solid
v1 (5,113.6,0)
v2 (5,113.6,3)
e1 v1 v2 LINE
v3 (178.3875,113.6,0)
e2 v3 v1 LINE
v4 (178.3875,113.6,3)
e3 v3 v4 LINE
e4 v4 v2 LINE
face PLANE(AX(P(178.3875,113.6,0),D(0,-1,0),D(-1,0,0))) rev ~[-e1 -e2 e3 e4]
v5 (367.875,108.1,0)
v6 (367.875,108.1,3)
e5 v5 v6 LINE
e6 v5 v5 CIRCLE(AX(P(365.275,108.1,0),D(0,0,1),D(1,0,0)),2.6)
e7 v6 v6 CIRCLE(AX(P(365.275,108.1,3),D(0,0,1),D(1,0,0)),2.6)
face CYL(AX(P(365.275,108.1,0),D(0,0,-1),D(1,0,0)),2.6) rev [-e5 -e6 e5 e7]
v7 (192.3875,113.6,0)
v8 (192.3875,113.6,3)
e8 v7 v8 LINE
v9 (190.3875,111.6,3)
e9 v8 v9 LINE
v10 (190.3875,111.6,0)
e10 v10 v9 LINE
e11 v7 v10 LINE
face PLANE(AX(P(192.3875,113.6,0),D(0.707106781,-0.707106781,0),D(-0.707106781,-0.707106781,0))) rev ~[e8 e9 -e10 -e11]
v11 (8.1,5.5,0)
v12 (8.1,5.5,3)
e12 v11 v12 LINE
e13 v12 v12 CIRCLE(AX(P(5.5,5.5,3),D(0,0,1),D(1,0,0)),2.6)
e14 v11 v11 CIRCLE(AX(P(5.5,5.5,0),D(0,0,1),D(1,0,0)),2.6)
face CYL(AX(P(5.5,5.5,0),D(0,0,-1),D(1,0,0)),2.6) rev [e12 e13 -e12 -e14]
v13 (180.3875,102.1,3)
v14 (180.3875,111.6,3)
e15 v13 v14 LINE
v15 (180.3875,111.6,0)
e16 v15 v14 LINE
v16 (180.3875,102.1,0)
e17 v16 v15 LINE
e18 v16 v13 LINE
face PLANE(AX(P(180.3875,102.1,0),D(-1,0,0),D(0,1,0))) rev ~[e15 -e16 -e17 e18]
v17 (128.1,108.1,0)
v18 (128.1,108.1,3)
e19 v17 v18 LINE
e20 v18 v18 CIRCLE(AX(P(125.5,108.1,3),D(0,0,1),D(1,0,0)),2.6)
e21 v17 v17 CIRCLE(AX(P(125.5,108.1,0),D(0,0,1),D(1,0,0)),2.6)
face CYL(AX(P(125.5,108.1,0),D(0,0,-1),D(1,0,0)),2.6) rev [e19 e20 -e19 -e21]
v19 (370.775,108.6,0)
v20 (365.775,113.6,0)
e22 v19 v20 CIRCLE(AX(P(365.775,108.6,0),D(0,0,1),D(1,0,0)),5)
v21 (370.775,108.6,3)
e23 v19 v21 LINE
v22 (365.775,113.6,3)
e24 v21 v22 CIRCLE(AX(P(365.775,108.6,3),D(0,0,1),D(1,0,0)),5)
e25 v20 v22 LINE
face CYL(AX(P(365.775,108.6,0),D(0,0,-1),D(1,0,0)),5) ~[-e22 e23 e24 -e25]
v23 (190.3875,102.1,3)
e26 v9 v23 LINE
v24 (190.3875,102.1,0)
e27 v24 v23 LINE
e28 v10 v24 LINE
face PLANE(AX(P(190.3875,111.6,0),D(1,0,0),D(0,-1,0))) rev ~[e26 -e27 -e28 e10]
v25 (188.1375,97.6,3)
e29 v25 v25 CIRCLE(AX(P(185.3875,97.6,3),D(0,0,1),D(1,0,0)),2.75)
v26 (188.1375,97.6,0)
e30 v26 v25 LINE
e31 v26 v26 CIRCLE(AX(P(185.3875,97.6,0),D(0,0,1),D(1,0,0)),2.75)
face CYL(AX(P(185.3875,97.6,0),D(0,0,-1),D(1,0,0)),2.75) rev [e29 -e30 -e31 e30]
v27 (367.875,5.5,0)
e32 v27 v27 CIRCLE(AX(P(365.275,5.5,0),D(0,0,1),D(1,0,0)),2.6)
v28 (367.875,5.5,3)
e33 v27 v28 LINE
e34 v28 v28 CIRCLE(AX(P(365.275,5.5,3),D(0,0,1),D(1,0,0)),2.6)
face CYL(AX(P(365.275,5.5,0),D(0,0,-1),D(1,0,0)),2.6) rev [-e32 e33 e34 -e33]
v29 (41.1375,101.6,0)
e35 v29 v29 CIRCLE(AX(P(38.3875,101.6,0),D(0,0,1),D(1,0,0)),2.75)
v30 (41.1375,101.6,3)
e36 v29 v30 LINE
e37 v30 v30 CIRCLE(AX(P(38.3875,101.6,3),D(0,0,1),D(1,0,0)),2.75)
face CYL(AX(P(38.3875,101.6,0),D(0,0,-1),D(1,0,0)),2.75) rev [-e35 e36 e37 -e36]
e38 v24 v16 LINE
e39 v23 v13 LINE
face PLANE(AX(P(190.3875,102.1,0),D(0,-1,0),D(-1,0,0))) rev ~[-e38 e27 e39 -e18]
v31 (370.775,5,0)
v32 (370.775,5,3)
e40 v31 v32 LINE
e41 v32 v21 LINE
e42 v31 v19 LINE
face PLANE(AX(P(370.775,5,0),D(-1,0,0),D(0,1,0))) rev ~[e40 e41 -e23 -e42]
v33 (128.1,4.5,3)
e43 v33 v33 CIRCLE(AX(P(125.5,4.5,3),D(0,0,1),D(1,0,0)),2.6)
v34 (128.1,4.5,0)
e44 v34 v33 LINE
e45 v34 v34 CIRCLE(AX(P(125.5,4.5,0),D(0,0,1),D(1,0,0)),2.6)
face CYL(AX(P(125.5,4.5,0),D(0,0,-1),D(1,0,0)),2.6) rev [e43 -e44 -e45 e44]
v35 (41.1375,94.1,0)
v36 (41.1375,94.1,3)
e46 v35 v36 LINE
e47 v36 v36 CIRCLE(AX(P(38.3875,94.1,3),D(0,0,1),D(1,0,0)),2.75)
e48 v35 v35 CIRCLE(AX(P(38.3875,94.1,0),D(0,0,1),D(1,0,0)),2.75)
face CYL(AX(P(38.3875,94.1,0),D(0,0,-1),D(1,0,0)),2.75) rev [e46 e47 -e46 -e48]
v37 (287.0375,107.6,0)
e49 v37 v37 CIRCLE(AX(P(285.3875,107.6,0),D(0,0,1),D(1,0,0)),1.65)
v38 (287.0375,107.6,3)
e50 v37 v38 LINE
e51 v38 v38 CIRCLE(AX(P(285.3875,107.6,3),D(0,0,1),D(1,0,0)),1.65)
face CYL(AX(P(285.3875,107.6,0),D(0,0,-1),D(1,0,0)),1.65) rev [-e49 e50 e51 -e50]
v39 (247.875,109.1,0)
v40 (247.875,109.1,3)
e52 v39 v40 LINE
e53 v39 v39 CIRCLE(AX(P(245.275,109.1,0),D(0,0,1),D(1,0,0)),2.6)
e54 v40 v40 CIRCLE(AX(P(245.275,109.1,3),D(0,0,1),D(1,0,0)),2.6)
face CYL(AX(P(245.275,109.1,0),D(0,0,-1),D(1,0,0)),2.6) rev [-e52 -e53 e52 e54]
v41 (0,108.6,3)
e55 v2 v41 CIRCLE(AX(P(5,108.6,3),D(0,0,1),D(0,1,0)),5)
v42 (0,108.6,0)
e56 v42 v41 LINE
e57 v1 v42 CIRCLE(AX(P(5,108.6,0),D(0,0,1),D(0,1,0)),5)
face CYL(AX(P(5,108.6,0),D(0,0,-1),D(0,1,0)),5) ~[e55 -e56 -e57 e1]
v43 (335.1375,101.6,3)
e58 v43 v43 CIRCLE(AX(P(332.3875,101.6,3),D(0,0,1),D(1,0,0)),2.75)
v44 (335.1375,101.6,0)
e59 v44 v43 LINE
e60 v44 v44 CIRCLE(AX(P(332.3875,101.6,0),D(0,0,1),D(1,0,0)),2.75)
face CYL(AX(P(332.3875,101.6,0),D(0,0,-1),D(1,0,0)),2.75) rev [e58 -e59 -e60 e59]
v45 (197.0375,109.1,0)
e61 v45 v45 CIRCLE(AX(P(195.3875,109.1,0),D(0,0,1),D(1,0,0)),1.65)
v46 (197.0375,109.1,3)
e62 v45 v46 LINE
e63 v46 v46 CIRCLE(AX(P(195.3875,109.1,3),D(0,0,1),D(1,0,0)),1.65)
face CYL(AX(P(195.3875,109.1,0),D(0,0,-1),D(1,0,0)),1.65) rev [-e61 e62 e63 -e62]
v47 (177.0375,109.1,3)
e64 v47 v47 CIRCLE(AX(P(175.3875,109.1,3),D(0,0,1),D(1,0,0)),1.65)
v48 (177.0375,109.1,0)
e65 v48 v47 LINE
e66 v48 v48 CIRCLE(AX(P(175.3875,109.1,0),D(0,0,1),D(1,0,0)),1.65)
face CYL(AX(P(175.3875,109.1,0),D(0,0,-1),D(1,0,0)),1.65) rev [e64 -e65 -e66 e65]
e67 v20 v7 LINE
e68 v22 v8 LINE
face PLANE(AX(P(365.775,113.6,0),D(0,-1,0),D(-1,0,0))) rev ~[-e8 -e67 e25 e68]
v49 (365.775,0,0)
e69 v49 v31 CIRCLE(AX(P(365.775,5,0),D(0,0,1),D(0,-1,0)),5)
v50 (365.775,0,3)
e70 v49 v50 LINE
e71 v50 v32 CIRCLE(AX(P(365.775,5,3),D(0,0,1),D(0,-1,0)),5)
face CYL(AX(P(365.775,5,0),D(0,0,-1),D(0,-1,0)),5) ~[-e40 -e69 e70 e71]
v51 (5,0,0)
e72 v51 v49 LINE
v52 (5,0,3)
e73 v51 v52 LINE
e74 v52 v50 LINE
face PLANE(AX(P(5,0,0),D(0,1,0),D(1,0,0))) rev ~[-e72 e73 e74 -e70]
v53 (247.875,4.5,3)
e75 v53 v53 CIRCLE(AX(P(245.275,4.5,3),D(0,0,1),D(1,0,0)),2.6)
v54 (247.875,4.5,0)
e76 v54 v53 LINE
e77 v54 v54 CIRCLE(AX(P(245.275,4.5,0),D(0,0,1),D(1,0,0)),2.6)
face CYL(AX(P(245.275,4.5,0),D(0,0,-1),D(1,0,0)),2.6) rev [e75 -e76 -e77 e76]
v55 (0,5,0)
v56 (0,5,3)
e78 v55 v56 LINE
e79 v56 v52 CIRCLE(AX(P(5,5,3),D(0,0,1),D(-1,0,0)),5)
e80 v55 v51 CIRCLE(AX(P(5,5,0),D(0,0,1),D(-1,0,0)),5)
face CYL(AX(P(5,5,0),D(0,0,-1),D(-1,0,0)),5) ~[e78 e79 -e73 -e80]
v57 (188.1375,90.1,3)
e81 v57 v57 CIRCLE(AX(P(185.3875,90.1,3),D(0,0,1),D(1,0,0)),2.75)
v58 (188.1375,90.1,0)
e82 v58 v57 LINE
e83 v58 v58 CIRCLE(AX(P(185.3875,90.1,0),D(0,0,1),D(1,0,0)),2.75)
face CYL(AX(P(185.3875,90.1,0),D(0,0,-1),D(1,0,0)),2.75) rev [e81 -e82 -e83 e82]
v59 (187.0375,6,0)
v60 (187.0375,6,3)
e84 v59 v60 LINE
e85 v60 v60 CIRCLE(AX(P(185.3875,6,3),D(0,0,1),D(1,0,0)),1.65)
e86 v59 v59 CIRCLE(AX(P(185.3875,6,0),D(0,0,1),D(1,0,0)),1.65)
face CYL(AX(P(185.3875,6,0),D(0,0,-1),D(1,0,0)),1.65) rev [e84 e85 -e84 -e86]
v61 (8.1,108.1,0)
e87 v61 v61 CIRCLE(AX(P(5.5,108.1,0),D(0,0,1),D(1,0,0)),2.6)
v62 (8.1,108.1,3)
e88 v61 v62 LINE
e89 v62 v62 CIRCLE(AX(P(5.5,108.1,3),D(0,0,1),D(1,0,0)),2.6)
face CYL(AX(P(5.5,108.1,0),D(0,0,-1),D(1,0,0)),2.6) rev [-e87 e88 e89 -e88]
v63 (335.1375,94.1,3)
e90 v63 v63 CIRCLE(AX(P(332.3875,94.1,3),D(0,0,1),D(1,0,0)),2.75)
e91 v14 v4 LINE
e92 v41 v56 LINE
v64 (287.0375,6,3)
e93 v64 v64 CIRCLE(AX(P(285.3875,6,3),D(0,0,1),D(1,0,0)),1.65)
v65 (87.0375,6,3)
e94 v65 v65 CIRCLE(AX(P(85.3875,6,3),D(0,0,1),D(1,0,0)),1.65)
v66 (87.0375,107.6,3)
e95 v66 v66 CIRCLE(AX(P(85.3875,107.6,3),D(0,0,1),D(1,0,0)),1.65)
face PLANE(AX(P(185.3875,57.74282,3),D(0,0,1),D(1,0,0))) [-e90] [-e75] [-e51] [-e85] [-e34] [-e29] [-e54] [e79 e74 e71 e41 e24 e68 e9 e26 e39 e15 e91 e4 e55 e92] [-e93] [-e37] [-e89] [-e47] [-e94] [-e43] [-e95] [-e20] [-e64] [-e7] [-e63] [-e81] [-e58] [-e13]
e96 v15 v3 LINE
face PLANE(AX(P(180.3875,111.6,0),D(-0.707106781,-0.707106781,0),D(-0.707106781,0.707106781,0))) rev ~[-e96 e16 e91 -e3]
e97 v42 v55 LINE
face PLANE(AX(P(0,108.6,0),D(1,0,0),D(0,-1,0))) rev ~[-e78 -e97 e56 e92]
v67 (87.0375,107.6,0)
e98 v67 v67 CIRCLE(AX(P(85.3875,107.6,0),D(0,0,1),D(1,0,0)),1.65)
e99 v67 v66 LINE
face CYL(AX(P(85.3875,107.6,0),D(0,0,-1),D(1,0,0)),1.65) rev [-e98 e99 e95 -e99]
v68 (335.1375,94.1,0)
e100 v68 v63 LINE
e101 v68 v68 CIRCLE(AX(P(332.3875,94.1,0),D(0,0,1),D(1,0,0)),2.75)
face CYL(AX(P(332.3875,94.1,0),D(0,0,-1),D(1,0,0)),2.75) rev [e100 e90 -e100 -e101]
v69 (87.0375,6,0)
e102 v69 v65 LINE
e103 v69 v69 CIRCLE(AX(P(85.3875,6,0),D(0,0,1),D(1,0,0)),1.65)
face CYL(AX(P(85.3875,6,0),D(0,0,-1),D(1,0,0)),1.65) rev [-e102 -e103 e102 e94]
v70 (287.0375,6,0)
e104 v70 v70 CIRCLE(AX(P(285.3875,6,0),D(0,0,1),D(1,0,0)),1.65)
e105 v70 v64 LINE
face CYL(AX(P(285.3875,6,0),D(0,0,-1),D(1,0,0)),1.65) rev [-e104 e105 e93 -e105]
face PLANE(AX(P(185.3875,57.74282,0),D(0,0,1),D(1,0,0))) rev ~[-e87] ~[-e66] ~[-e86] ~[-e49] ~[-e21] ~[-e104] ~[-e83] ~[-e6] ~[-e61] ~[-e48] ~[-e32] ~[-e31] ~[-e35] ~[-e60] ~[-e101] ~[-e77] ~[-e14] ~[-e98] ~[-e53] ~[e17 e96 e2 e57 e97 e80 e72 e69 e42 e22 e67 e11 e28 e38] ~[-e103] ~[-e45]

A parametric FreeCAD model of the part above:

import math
import FreeCAD as App
import Part
import Sketcher
Q = App.Units.Quantity

doc = App.newDocument("Part")
body = doc.addObject("PartDesign::Body", "Body")

# Sketch on XY plane
sketch1 = doc.addObject("Sketcher::SketchObject", "Sketch")
body.addObject(sketch1)
sketch1.AttachmentSupport = (doc.XY_Plane, [""])
sketch1.MapMode = "FlatFace"
sketch1.addGeometry([
    Part.LineSegment(App.Vector(0, 108.6, 0), App.Vector(0, 5, 0)),  # 0
    Part.ArcOfCircle(Part.Circle(App.Vector(5, 5, 0), App.Vector(0, 0, 1), 5), math.radians(180), math.radians(270)),  # 1
    Part.LineSegment(App.Vector(5, 0, 0), App.Vector(365.8, 0, 0)),  # 2
    Part.ArcOfCircle(Part.Circle(App.Vector(365.8, 5, 0), App.Vector(0, 0, 1), 5), math.radians(-90), math.radians(0)),  # 3
    Part.LineSegment(App.Vector(370.8, 5, 0), App.Vector(370.8, 108.6, 0)),  # 4
    Part.ArcOfCircle(Part.Circle(App.Vector(365.8, 108.6, 0), App.Vector(0, 0, 1), 5), math.radians(0), math.radians(90)),  # 5
    Part.LineSegment(App.Vector(365.8, 113.6, 0), App.Vector(192.4, 113.6, 0)),  # 6
    Part.LineSegment(App.Vector(192.4, 113.6, 0), App.Vector(190.4, 111.6, 0)),  # 7
    Part.LineSegment(App.Vector(190.4, 111.6, 0), App.Vector(190.4, 102.1, 0)),  # 8
    Part.LineSegment(App.Vector(190.4, 102.1, 0), App.Vector(180.4, 102.1, 0)),  # 9
    Part.LineSegment(App.Vector(180.4, 102.1, 0), App.Vector(180.4, 111.6, 0)),  # 10
    Part.LineSegment(App.Vector(180.4, 111.6, 0), App.Vector(178.4, 113.6, 0)),  # 11
    Part.LineSegment(App.Vector(178.4, 113.6, 0), App.Vector(5, 113.6, 0)),  # 12
    Part.ArcOfCircle(Part.Circle(App.Vector(5, 108.6, 0), App.Vector(0, 0, 1), 5), math.radians(90), math.radians(180)),  # 13
    Part.Circle(App.Vector(5.5, 5.5, 0), App.Vector(0, 0, 1), 2.6),  # 14
    Part.Circle(App.Vector(85.4, 6, 0), App.Vector(0, 0, 1), 1.6),  # 15
    Part.Circle(App.Vector(125.5, 4.5, 0), App.Vector(0, 0, 1), 2.6),  # 16
    Part.Circle(App.Vector(185.4, 6, 0), App.Vector(0, 0, 1), 1.6),  # 17
    Part.Circle(App.Vector(245.3, 4.5, 0), App.Vector(0, 0, 1), 2.6),  # 18
    Part.Circle(App.Vector(285.4, 6, 0), App.Vector(0, 0, 1), 1.6),  # 19
    Part.Circle(App.Vector(365.3, 5.5, 0), App.Vector(0, 0, 1), 2.6),  # 20
    Part.Circle(App.Vector(38.4, 94.1, 0), App.Vector(0, 0, 1), 2.8),  # 21
    Part.Circle(App.Vector(38.4, 101.6, 0), App.Vector(0, 0, 1), 2.8),  # 22
    Part.Circle(App.Vector(5.5, 108.1, 0), App.Vector(0, 0, 1), 2.6),  # 23
    Part.Circle(App.Vector(85.4, 107.6, 0), App.Vector(0, 0, 1), 1.6),  # 24
    Part.Circle(App.Vector(185.4, 90.1, 0), App.Vector(0, 0, 1), 2.8),  # 25
    Part.Circle(App.Vector(185.4, 97.6, 0), App.Vector(0, 0, 1), 2.8),  # 26
    Part.Circle(App.Vector(125.5, 108.1, 0), App.Vector(0, 0, 1), 2.6),  # 27
    Part.Circle(App.Vector(175.4, 109.1, 0), App.Vector(0, 0, 1), 1.6),  # 28
    Part.Circle(App.Vector(195.4, 109.1, 0), App.Vector(0, 0, 1), 1.6),  # 29
    Part.Circle(App.Vector(245.3, 109.1, 0), App.Vector(0, 0, 1), 2.6),  # 30
    Part.Circle(App.Vector(332.4, 94.1, 0), App.Vector(0, 0, 1), 2.8),  # 31
    Part.Circle(App.Vector(285.4, 107.6, 0), App.Vector(0, 0, 1), 1.6),  # 32
    Part.Circle(App.Vector(332.4, 101.6, 0), App.Vector(0, 0, 1), 2.8),  # 33
    Part.Circle(App.Vector(365.3, 108.1, 0), App.Vector(0, 0, 1), 2.6),  # 34
], False)
sketch1.addConstraint([
    Sketcher.Constraint("Tangent", 0, 2, 1, 1),
    Sketcher.Constraint("Tangent", 1, 2, 2, 1),
    Sketcher.Constraint("Tangent", 2, 2, 3, 1),
    Sketcher.Constraint("Tangent", 3, 2, 4, 1),
    Sketcher.Constraint("Tangent", 4, 2, 5, 1),
    Sketcher.Constraint("Tangent", 5, 2, 6, 1),
    Sketcher.Constraint("Coincident", 6, 2, 7, 1),
    Sketcher.Constraint("Coincident", 7, 2, 8, 1),
    Sketcher.Constraint("Coincident", 8, 2, 9, 1),
    Sketcher.Constraint("Coincident", 9, 2, 10, 1),
    Sketcher.Constraint("Coincident", 10, 2, 11, 1),
    Sketcher.Constraint("Coincident", 11, 2, 12, 1),
    Sketcher.Constraint("Tangent", 12, 2, 13, 1),
    Sketcher.Constraint("Tangent", 13, 2, 0, 1),
    Sketcher.Constraint("Vertical", 0),
    Sketcher.Constraint("Horizontal", 2),
    Sketcher.Constraint("Vertical", 4),
    Sketcher.Constraint("Horizontal", 6),
    Sketcher.Constraint("Vertical", 8),
    Sketcher.Constraint("Horizontal", 9),
    Sketcher.Constraint("Vertical", 10),
    Sketcher.Constraint("Horizontal", 12),
    Sketcher.Constraint("Equal", 1, 3),
    Sketcher.Constraint("Equal", 3, 5),
    Sketcher.Constraint("Equal", 5, 13),
    Sketcher.Constraint("Equal", 14, 16),
    Sketcher.Constraint("Equal", 15, 17),
    Sketcher.Constraint("Equal", 16, 18),
    Sketcher.Constraint("Equal", 17, 19),
    Sketcher.Constraint("Equal", 18, 20),
    Sketcher.Constraint("Equal", 21, 22),
    Sketcher.Constraint("Equal", 20, 23),
    Sketcher.Constraint("Equal", 19, 24),
    Sketcher.Constraint("Equal", 22, 25),
    Sketcher.Constraint("Equal", 25, 26),
    Sketcher.Constraint("Equal", 23, 27),
    Sketcher.Constraint("Equal", 24, 28),
    Sketcher.Constraint("Equal", 28, 29),
    Sketcher.Constraint("Equal", 27, 30),
    Sketcher.Constraint("Equal", 26, 31),
    Sketcher.Constraint("Equal", 29, 32),
    Sketcher.Constraint("Equal", 31, 33),
    Sketcher.Constraint("Equal", 30, 34),
    Sketcher.Constraint("PointOnObject", 0, 2, -2),
    Sketcher.Constraint("PointOnObject", 1, 2, -1),
    Sketcher.Constraint("Perpendicular", 7, 11),
    Sketcher.Constraint("Horizontal", 5, 3, 13, 3),
    Sketcher.Constraint("Horizontal", 15, 3, 17, 3),
    Sketcher.Constraint("Horizontal", 16, 3, 18, 3),
    Sketcher.Constraint("Horizontal", 17, 3, 19, 3),
    Sketcher.Constraint("Horizontal", 14, 3, 20, 3),
    Sketcher.Constraint("Horizontal", 23, 3, 27, 3),
    Sketcher.Constraint("Horizontal", 28, 3, 29, 3),
    Sketcher.Constraint("Horizontal", 29, 3, 30, 3),
    Sketcher.Constraint("Horizontal", 21, 3, 31, 3),
    Sketcher.Constraint("Horizontal", 24, 3, 32, 3),
    Sketcher.Constraint("Horizontal", 22, 3, 33, 3),
    Sketcher.Constraint("Horizontal", 27, 3, 34, 3),
    Sketcher.Constraint("Horizontal", 7, 2, 10, 2),
    Sketcher.Constraint("Vertical", 21, 3, 22, 3),
    Sketcher.Constraint("Vertical", 14, 3, 23, 3),
    Sketcher.Constraint("Vertical", 15, 3, 24, 3),
    Sketcher.Constraint("Vertical", 17, 3, 25, 3),
    Sketcher.Constraint("Vertical", 25, 3, 26, 3),
    Sketcher.Constraint("Vertical", 16, 3, 27, 3),
    Sketcher.Constraint("Vertical", 18, 3, 30, 3),
    Sketcher.Constraint("Vertical", 19, 3, 32, 3),
    Sketcher.Constraint("Vertical", 31, 3, 33, 3),
    Sketcher.Constraint("Vertical", 20, 3, 34, 3),
    Sketcher.Constraint("Equal", 6, 12),
    Sketcher.Constraint("Equal", 7, 11),
    Sketcher.Constraint("Radius", 1, Q("5 mm")),
    Sketcher.Constraint("Diameter", 14, Q("5.2 mm")),
    Sketcher.Constraint("Diameter", 15, Q("3.3 mm")),
    Sketcher.Constraint("Diameter", 21, Q("5.5 mm")),
    Sketcher.Constraint("DistanceX", 9, 2, 9, 1, Q("10 mm")),
    Sketcher.Constraint("DistanceY", 0, 2, 0, 1, Q("103.6 mm")),
    Sketcher.Constraint("DistanceY", 8, 2, 8, 1, Q("9.5 mm")),
    Sketcher.Constraint("DistanceY", -1, 1, 15, 3, Q("6 mm")),
    Sketcher.Constraint("DistanceX", 14, 3, 16, 3, Q("120 mm")),
    Sketcher.Constraint("DistanceY", 16, 3, 14, 3, Q("1 mm")),
    Sketcher.Constraint("DistanceX", 15, 3, 17, 3, Q("100 mm")),
    Sketcher.Constraint("DistanceX", 17, 3, 19, 3, Q("100 mm")),
    Sketcher.Constraint("DistanceX", 18, 3, 20, 3, Q("120 mm")),
    Sketcher.Constraint("DistanceX", 21, 3, 15, 3, Q("47 mm")),
    Sketcher.Constraint("DistanceY", 22, 3, 13, 3, Q("7 mm")),
    Sketcher.Constraint("DistanceY", 21, 3, 23, 3, Q("14 mm")),
    Sketcher.Constraint("DistanceY", 22, 3, 24, 3, Q("6 mm")),
    Sketcher.Constraint("DistanceY", 26, 3, 24, 3, Q("10 mm")),
    Sketcher.Constraint("DistanceY", 25, 3, 27, 3, Q("18 mm")),
    Sketcher.Constraint("DistanceX", 28, 3, 26, 3, Q("10 mm")),
    Sketcher.Constraint("DistanceY", 25, 3, 28, 3, Q("19 mm")),
    Sketcher.Constraint("DistanceX", 26, 3, 29, 3, Q("10 mm")),
    Sketcher.Constraint("DistanceX", 19, 3, 31, 3, Q("47 mm")),
    Sketcher.Constraint("DistanceX", 6, 2, 29, 3, Q("3 mm")),
    Sketcher.Constraint("DistanceX", 7, 2, 6, 2, Q("2 mm")),
    Sketcher.Constraint("DistanceY", 8, 2, 29, 3, Q("7 mm")),
    Sketcher.Constraint("DistanceX", -1, 1, 14, 3, Q("5.5 mm")),
    Sketcher.Constraint("DistanceY", -1, 1, 14, 3, Q("5.5 mm")),
    Sketcher.Constraint("DistanceX", 18, 3, 3, 3, Q("120.5 mm")),
    Sketcher.Constraint("DistanceX", 2, 1, 2, 2, Q("360.775 mm")),
])
pad1 = doc.addObject("PartDesign::Pad", "Pad")
body.addObject(pad1)
pad1.Profile = sketch1
pad1.Length = 3

doc.recompute()
